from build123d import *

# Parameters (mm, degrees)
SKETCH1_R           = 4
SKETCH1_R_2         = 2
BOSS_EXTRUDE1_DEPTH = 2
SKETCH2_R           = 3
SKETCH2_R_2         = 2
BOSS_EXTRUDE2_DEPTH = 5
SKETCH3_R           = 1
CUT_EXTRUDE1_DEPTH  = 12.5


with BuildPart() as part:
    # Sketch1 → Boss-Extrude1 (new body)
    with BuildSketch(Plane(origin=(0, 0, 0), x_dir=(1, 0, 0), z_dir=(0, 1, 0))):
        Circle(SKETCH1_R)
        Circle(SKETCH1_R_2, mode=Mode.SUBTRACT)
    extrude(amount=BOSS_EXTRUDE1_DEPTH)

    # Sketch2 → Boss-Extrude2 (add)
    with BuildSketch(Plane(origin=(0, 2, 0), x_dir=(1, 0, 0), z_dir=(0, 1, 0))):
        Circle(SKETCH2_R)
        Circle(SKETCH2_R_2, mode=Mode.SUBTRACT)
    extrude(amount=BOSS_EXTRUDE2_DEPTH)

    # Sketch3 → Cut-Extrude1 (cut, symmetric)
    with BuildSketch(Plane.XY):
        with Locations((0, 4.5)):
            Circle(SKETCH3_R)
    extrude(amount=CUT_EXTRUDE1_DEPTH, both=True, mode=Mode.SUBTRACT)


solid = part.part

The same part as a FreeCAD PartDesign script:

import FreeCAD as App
import Part
import Sketcher
Q = App.Units.Quantity

doc = App.newDocument("Part")
params = doc.addObject("Spreadsheet::Sheet", "Params")
for row, (alias, value) in enumerate([
    ("sketch1_diameter", "8 mm"),
    ("sketch1_diameter2", "4 mm"),
    ("pad1_length", "2 mm"),
    ("sketch2_diameter", "6 mm"),
    ("sketch2_diameter2", "4 mm"),
    ("pad2_length", "5 mm"),
    ("sketch3_diameter", "2 mm"),
    ("pocket1_length", "25 mm"),
], start=1):
    params.set(f"A{row}", alias)
    params.set(f"B{row}", "=" + value)
    params.setAlias(f"B{row}", alias)

body = doc.addObject("PartDesign::Body", "Body")

sketch1 = doc.addObject("Sketcher::SketchObject", "Sketch")
body.addObject(sketch1)
sketch1.AttachmentSupport = (doc.XZ_Plane, [""])
sketch1.MapMode = "FlatFace"
sketch1.addGeometry(Part.Circle(App.Vector(0, 0, 0), App.Vector(0, 0, 1), 4), False)
sketch1.addGeometry(Part.Circle(App.Vector(0, 0, 0), App.Vector(0, 0, 1), 2), False)
sketch1.addConstraint(Sketcher.Constraint("Coincident", 0, 3, -1, 1))
sketch1.addConstraint(Sketcher.Constraint("Coincident", 1, 3, -1, 1))
sketch1.addConstraint(Sketcher.Constraint("Diameter", 0, Q("8 mm")))
sketch1.addConstraint(Sketcher.Constraint("Diameter", 1, Q("4 mm")))
sketch1.setExpression("Constraints[2]", "Params.sketch1_diameter")
sketch1.setExpression("Constraints[3]", "Params.sketch1_diameter2")
pad1 = doc.addObject("PartDesign::Pad", "Pad")
body.addObject(pad1)
pad1.Profile = sketch1
pad1.setExpression("Length", "Params.pad1_length")
pad1.Reversed = True

sketch2 = doc.addObject("Sketcher::SketchObject", "Sketch001")
body.addObject(sketch2)
sketch2.AttachmentSupport = (doc.XZ_Plane, [""])
sketch2.MapMode = "FlatFace"
sketch2.AttachmentOffset = App.Placement(App.Vector(0, 0, -2), App.Rotation())
sketch2.addGeometry(Part.Circle(App.Vector(0, 0, 0), App.Vector(0, 0, 1), 3), False)
sketch2.addGeometry(Part.Circle(App.Vector(0, 0, 0), App.Vector(0, 0, 1), 2), False)
sketch2.addConstraint(Sketcher.Constraint("Coincident", 0, 3, -1, 1))
sketch2.addConstraint(Sketcher.Constraint("Coincident", 1, 3, -1, 1))
sketch2.addConstraint(Sketcher.Constraint("Diameter", 0, Q("6 mm")))
sketch2.addConstraint(Sketcher.Constraint("Diameter", 1, Q("4 mm")))
sketch2.setExpression("Constraints[2]", "Params.sketch2_diameter")
sketch2.setExpression("Constraints[3]", "Params.sketch2_diameter2")
pad2 = doc.addObject("PartDesign::Pad", "Pad001")
body.addObject(pad2)
pad2.Profile = sketch2
pad2.setExpression("Length", "Params.pad2_length")
pad2.Reversed = True

sketch3 = doc.addObject("Sketcher::SketchObject", "Sketch002")
body.addObject(sketch3)
sketch3.AttachmentSupport = (doc.XY_Plane, [""])
sketch3.MapMode = "FlatFace"
sketch3.addGeometry(Part.Circle(App.Vector(0, 4.5, 0), App.Vector(0, 0, 1), 1), False)
sketch3.addConstraint(Sketcher.Constraint("PointOnObject", 0, 3, -2))
sketch3.addConstraint(Sketcher.Constraint("Diameter", 0, Q("2 mm")))
sketch3.addConstraint(Sketcher.Constraint("DistanceY", -1, 1, 0, 3, Q("4.5 mm")))
sketch3.setExpression("Constraints[1]", "Params.sketch3_diameter")
pocket1 = doc.addObject("PartDesign::Pocket", "Pocket")
body.addObject(pocket1)
pocket1.Profile = sketch3
pocket1.setExpression("Length", "Params.pocket1_length")
pocket1.Midplane = True

doc.recompute()
